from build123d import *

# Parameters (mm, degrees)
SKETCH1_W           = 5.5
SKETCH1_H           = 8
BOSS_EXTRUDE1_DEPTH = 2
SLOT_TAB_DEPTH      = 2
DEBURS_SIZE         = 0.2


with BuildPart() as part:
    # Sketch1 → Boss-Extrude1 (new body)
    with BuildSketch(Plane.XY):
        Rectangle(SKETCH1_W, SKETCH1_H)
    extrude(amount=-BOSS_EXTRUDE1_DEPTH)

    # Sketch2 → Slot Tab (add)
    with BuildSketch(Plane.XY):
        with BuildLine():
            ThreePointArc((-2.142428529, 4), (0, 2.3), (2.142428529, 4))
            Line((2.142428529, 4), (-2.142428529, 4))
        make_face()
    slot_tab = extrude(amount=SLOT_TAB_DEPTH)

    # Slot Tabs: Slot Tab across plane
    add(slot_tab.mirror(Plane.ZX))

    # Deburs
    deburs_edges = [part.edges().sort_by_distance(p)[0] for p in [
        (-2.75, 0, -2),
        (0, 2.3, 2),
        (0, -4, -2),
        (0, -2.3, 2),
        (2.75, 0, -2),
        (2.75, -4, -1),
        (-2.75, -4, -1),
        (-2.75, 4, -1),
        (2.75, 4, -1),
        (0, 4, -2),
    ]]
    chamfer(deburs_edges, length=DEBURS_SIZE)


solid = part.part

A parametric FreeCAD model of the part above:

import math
import FreeCAD as App
import Part
import Sketcher
Q = App.Units.Quantity


def edges_at(feature, points):
    """Names of the edges that pass closest to the given points."""
    edges = feature.Shape.Edges
    near = lambda p: min(range(len(edges)), key=lambda i: edges[i].distToShape(Part.Vertex(*p))[0])
    return sorted({f"Edge{near(p) + 1}" for p in points})

doc = App.newDocument("Part")
body = doc.addObject("PartDesign::Body", "Body")

# Sketch on XY plane
sketch1 = doc.addObject("Sketcher::SketchObject", "Sketch")
body.addObject(sketch1)
sketch1.AttachmentSupport = (doc.XY_Plane, [""])
sketch1.MapMode = "FlatFace"
sketch1.addGeometry([
    Part.LineSegment(App.Vector(-3, 4, 0), App.Vector(-3, -4, 0)),
    Part.LineSegment(App.Vector(-3, -4, 0), App.Vector(3, -4, 0)),
    Part.LineSegment(App.Vector(3, -4, 0), App.Vector(3, 4, 0)),
    Part.LineSegment(App.Vector(3, 4, 0), App.Vector(-3, 4, 0)),
], False)
sketch1.addConstraint([
    Sketcher.Constraint("Coincident", 0, 2, 1, 1),
    Sketcher.Constraint("Coincident", 1, 2, 2, 1),
    Sketcher.Constraint("Coincident", 2, 2, 3, 1),
    Sketcher.Constraint("Coincident", 3, 2, 0, 1),
    Sketcher.Constraint("Vertical", 0),
    Sketcher.Constraint("Horizontal", 1),
    Sketcher.Constraint("Vertical", 2),
    Sketcher.Constraint("Horizontal", 3),
    Sketcher.Constraint("Symmetric", 0, 2, 2, 2, -1, 1),
    Sketcher.Constraint("DistanceY", 0, 2, 0, 1, Q("8 mm")),
    Sketcher.Constraint("DistanceX", 1, 1, 1, 2, Q("5.5 mm")),
])
pad1 = doc.addObject("PartDesign::Pad", "Pad")
body.addObject(pad1)
pad1.Profile = sketch1
pad1.Length = 2
pad1.Reversed = True

# Sketch on XY plane
sketch2 = doc.addObject("Sketcher::SketchObject", "Sketch001")
body.addObject(sketch2)
sketch2.AttachmentSupport = (doc.XY_Plane, [""])
sketch2.MapMode = "FlatFace"
sketch2.addGeometry([
    Part.ArcOfCircle(Part.Circle(App.Vector(0, 4.5, 0), App.Vector(0, 0, 1), 2.2), math.radians(-167), math.radians(-13)),
    Part.LineSegment(App.Vector(2.1, 4, 0), App.Vector(-2.1, 4, 0)),
], False)
sketch2.addConstraint([
    Sketcher.Constraint("Coincident", 0, 1, 1, 2),
    Sketcher.Constraint("Coincident", 1, 1, 0, 2),
    Sketcher.Constraint("Horizontal", 1),
    Sketcher.Constraint("PointOnObject", 0, 3, -2),
    Sketcher.Constraint("Radius", 0, Q("2.2 mm")),
    Sketcher.Constraint("DistanceY", -1, 1, 0, 1, Q("4 mm")),
    Sketcher.Constraint("DistanceY", -1, 1, 0, 3, Q("4.5 mm")),
])
pad2 = doc.addObject("PartDesign::Pad", "Pad001")
body.addObject(pad2)
pad2.Profile = sketch2
pad2.Length = 2
doc.recompute()

mirrored = doc.addObject("PartDesign::Mirrored", "Mirrored")
body.addObject(mirrored)
mirrored.Originals = [pad2]
mirrored.MirrorPlane = (doc.XZ_Plane, [""])
body.Tip = mirrored
doc.recompute()

chamfer = doc.addObject("PartDesign::Chamfer", "Chamfer")
body.addObject(chamfer)
chamfer.Base = (mirrored, edges_at(mirrored, [
    (-2.75, 0, -2),
    (0, 2.3, 2),
    (0, -4, -2),
    (0, -2.3, 2),
    (2.75, 0, -2),
    (2.75, -4, -1),
    (-2.75, -4, -1),
    (-2.75, 4, -1),
    (2.75, 4, -1),
    (0, 4, -2),
]))
chamfer.Size = 0.2

doc.recompute()
